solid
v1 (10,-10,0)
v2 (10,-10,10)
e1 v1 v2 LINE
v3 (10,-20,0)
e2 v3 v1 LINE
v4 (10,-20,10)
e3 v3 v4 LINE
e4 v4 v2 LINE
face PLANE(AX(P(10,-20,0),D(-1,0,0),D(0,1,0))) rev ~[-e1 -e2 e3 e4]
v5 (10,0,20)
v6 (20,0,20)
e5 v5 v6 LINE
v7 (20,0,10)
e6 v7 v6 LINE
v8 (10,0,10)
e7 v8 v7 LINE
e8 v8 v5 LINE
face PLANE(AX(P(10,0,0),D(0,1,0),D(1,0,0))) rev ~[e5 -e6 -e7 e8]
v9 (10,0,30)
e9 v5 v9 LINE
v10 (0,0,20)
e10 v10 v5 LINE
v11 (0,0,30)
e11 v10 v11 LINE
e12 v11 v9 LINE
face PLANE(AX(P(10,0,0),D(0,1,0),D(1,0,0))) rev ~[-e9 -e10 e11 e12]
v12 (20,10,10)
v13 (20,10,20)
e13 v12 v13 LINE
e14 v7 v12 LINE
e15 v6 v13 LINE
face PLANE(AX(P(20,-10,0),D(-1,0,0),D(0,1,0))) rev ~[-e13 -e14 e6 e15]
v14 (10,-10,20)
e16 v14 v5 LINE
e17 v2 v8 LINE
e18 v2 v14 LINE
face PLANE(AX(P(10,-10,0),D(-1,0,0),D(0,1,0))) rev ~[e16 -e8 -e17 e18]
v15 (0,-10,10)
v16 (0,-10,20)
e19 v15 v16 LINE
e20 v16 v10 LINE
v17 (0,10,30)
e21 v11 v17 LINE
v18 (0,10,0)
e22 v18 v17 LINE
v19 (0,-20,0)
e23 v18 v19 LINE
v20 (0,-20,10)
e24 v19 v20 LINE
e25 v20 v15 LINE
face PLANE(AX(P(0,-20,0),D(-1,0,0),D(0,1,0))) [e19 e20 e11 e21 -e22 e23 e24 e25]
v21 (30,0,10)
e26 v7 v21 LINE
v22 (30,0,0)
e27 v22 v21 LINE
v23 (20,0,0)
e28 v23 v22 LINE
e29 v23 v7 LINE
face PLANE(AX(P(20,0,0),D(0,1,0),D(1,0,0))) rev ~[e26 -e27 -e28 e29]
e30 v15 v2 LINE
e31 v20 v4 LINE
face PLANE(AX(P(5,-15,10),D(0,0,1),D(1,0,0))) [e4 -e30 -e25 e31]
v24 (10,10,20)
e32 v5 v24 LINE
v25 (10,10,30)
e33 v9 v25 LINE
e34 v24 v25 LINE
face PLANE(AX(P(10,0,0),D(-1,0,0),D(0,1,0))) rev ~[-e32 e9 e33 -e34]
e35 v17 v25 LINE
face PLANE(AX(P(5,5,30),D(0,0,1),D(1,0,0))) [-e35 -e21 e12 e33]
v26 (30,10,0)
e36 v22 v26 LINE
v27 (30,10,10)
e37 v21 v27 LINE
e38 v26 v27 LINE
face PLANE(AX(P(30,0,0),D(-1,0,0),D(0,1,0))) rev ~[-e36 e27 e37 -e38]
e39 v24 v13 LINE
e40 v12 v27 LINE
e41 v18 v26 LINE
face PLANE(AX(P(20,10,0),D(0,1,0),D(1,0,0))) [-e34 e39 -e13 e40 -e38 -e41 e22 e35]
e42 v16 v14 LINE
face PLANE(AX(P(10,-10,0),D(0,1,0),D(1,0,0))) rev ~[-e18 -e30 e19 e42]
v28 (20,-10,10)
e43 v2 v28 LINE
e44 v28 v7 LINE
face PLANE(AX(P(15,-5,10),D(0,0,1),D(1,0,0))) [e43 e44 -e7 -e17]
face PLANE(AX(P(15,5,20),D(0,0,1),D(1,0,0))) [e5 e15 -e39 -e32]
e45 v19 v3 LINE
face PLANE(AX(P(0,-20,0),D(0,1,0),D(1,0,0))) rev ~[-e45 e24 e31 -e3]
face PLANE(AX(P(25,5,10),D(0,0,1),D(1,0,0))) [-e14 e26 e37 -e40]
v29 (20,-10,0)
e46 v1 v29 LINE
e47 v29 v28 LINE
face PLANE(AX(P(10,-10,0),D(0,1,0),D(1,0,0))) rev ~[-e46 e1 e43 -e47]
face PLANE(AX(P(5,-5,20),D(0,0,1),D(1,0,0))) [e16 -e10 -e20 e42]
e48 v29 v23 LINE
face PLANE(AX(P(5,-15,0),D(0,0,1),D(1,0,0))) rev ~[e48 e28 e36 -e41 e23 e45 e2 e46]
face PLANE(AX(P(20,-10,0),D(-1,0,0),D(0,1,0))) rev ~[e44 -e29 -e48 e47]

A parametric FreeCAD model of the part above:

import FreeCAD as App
import Part
import Sketcher

V = App.Vector
Q = App.Units.Quantity

doc = App.newDocument("Part")
body = doc.addObject("PartDesign::Body", "Body")

sketch1 = body.newObject("Sketcher::SketchObject", "Sketch")
sketch1.AttachmentSupport = (doc.getObject("XY_Plane"), [""])
sketch1.MapMode = "FlatFace"
sketch1.addGeometry(Part.LineSegment(V(10, 10, 0), V(10, 0, 0)), False)
sketch1.addGeometry(Part.LineSegment(V(10, 0, 0), V(20, 0, 0)), False)
sketch1.addGeometry(Part.LineSegment(V(20, 0, 0), V(20, 10, 0)), False)
sketch1.addGeometry(Part.LineSegment(V(20, 10, 0), V(10, 10, 0)), False)
sketch1.addConstraint(Sketcher.Constraint("Coincident", 0, 2, 1, 1))
sketch1.addConstraint(Sketcher.Constraint("Coincident", 1, 2, 2, 1))
sketch1.addConstraint(Sketcher.Constraint("Coincident", 2, 2, 3, 1))
sketch1.addConstraint(Sketcher.Constraint("Coincident", 3, 2, 0, 1))
sketch1.addConstraint(Sketcher.Constraint("Vertical", 0))
sketch1.addConstraint(Sketcher.Constraint("Horizontal", 1))
sketch1.addConstraint(Sketcher.Constraint("Vertical", 2))
sketch1.addConstraint(Sketcher.Constraint("Horizontal", 3))
sketch1.addConstraint(Sketcher.Constraint("PointOnObject", 0, 2, -1))
sketch1.addConstraint(Sketcher.Constraint("Equal", 3, 0))
sketch1.addConstraint(Sketcher.Constraint("DistanceX", 1, 1, 1, 2, Q("10 mm")))
sketch1.addConstraint(Sketcher.Constraint("DistanceX", -1, 1, 0, 2, Q("10 mm")))
pad1 = body.newObject("PartDesign::Pad", "Pad")
pad1.Profile = sketch1
pad1.Length = 20
body2 = doc.addObject("PartDesign::Body", "Body001")

sketch2 = body2.newObject("Sketcher::SketchObject", "Sketch001")
sketch2.AttachmentSupport = (doc.getObject("XY_Plane001"), [""])
sketch2.MapMode = "FlatFace"
sketch2.addGeometry(Part.LineSegment(V(0, 0, 0), V(0, -10, 0)), False)
sketch2.addGeometry(Part.LineSegment(V(0, -10, 0), V(10, -10, 0)), False)
sketch2.addGeometry(Part.LineSegment(V(10, -10, 0), V(10, 0, 0)), False)
sketch2.addGeometry(Part.LineSegment(V(10, 0, 0), V(0, 0, 0)), False)
sketch2.addConstraint(Sketcher.Constraint("Coincident", 0, 2, 1, 1))
sketch2.addConstraint(Sketcher.Constraint("Coincident", 1, 2, 2, 1))
sketch2.addConstraint(Sketcher.Constraint("Coincident", 2, 2, 3, 1))
sketch2.addConstraint(Sketcher.Constraint("Coincident", 3, 2, 0, 1))
sketch2.addConstraint(Sketcher.Constraint("Vertical", 0))
sketch2.addConstraint(Sketcher.Constraint("Horizontal", 1))
sketch2.addConstraint(Sketcher.Constraint("Vertical", 2))
sketch2.addConstraint(Sketcher.Constraint("Horizontal", 3))
sketch2.addConstraint(Sketcher.Constraint("Coincident", 3, 2, -1, 1))
sketch2.addConstraint(Sketcher.Constraint("Equal", 3, 0))
sketch2.addConstraint(Sketcher.Constraint("DistanceX", 1, 1, 1, 2, Q("10 mm")))
pad2 = body2.newObject("PartDesign::Pad", "Pad001")
pad2.Profile = sketch2
pad2.Length = 20
body3 = doc.addObject("PartDesign::Body", "Body002")

sketch3 = body3.newObject("Sketcher::SketchObject", "Sketch002")
sketch3.AttachmentSupport = (doc.getObject("XY_Plane002"), [""])
sketch3.MapMode = "FlatFace"
sketch3.addGeometry(Part.LineSegment(V(10, 0, 0), V(10, -10, 0)), False)
sketch3.addGeometry(Part.LineSegment(V(10, -10, 0), V(20, -10, 0)), False)
sketch3.addGeometry(Part.LineSegment(V(20, -10, 0), V(20, 0, 0)), False)
sketch3.addGeometry(Part.LineSegment(V(20, 0, 0), V(10, 0, 0)), False)
sketch3.addConstraint(Sketcher.Constraint("Coincident", 0, 2, 1, 1))
sketch3.addConstraint(Sketcher.Constraint("Coincident", 1, 2, 2, 1))
sketch3.addConstraint(Sketcher.Constraint("Coincident", 2, 2, 3, 1))
sketch3.addConstraint(Sketcher.Constraint("Coincident", 3, 2, 0, 1))
sketch3.addConstraint(Sketcher.Constraint("Vertical", 0))
sketch3.addConstraint(Sketcher.Constraint("Horizontal", 1))
sketch3.addConstraint(Sketcher.Constraint("Vertical", 2))
sketch3.addConstraint(Sketcher.Constraint("Horizontal", 3))
sketch3.addConstraint(Sketcher.Constraint("PointOnObject", 2, 2, -1))
sketch3.addConstraint(Sketcher.Constraint("Equal", 3, 0))
sketch3.addConstraint(Sketcher.Constraint("DistanceX", 1, 1, 1, 2, Q("10 mm")))
sketch3.addConstraint(Sketcher.Constraint("DistanceX", -1, 1, 0, 2, Q("10 mm")))
pad3 = body3.newObject("PartDesign::Pad", "Pad002")
pad3.Profile = sketch3
pad3.Length = 10
body4 = doc.addObject("PartDesign::Body", "Body003")

sketch4 = body4.newObject("Sketcher::SketchObject", "Sketch003")
sketch4.AttachmentSupport = (doc.getObject("XY_Plane003"), [""])
sketch4.MapMode = "FlatFace"
sketch4.addGeometry(Part.LineSegment(V(20, 10, 0), V(20, 0, 0)), False)
sketch4.addGeometry(Part.LineSegment(V(20, 0, 0), V(30, 0, 0)), False)
sketch4.addGeometry(Part.LineSegment(V(30, 0, 0), V(30, 10, 0)), False)
sketch4.addGeometry(Part.LineSegment(V(30, 10, 0), V(20, 10, 0)), False)
sketch4.addConstraint(Sketcher.Constraint("Coincident", 0, 2, 1, 1))
sketch4.addConstraint(Sketcher.Constraint("Coincident", 1, 2, 2, 1))
sketch4.addConstraint(Sketcher.Constraint("Coincident", 2, 2, 3, 1))
sketch4.addConstraint(Sketcher.Constraint("Coincident", 3, 2, 0, 1))
sketch4.addConstraint(Sketcher.Constraint("Vertical", 0))
sketch4.addConstraint(Sketcher.Constraint("Horizontal", 1))
sketch4.addConstraint(Sketcher.Constraint("Vertical", 2))
sketch4.addConstraint(Sketcher.Constraint("Horizontal", 3))
sketch4.addConstraint(Sketcher.Constraint("PointOnObject", 0, 2, -1))
sketch4.addConstraint(Sketcher.Constraint("Equal", 3, 0))
sketch4.addConstraint(Sketcher.Constraint("DistanceX", 1, 1, 1, 2, Q("10 mm")))
sketch4.addConstraint(Sketcher.Constraint("DistanceX", -1, 1, 0, 2, Q("20 mm")))
pad4 = body4.newObject("PartDesign::Pad", "Pad003")
pad4.Profile = sketch4
pad4.Length = 10
body5 = doc.addObject("PartDesign::Body", "Body004")

sketch5 = body5.newObject("Sketcher::SketchObject", "Sketch004")
sketch5.AttachmentSupport = (doc.getObject("XY_Plane004"), [""])
sketch5.MapMode = "FlatFace"
sketch5.addGeometry(Part.LineSegment(V(0, -10, 0), V(0, -20, 0)), False)
sketch5.addGeometry(Part.LineSegment(V(0, -20, 0), V(10, -20, 0)), False)
sketch5.addGeometry(Part.LineSegment(V(10, -20, 0), V(10, -10, 0)), False)
sketch5.addGeometry(Part.LineSegment(V(10, -10, 0), V(0, -10, 0)), False)
sketch5.addConstraint(Sketcher.Constraint("Coincident", 0, 2, 1, 1))
sketch5.addConstraint(Sketcher.Constraint("Coincident", 1, 2, 2, 1))
sketch5.addConstraint(Sketcher.Constraint("Coincident", 2, 2, 3, 1))
sketch5.addConstraint(Sketcher.Constraint("Coincident", 3, 2, 0, 1))
sketch5.addConstraint(Sketcher.Constraint("Vertical", 0))
sketch5.addConstraint(Sketcher.Constraint("Horizontal", 1))
sketch5.addConstraint(Sketcher.Constraint("Vertical", 2))
sketch5.addConstraint(Sketcher.Constraint("Horizontal", 3))
sketch5.addConstraint(Sketcher.Constraint("PointOnObject", 0, 2, -2))
sketch5.addConstraint(Sketcher.Constraint("Equal", 3, 0))
sketch5.addConstraint(Sketcher.Constraint("DistanceX", 1, 1, 1, 2, Q("10 mm")))
sketch5.addConstraint(Sketcher.Constraint("DistanceY", 0, 2, -1, 1, Q("20 mm")))
pad5 = body5.newObject("PartDesign::Pad", "Pad004")
pad5.Profile = sketch5
pad5.Length = 10
body6 = doc.addObject("PartDesign::Body", "Body005")

sketch6 = body6.newObject("Sketcher::SketchObject", "Sketch005")
sketch6.AttachmentSupport = (doc.getObject("XY_Plane005"), [""])
sketch6.MapMode = "FlatFace"
sketch6.addGeometry(Part.LineSegment(V(0, 10, 0), V(0, 0, 0)), False)
sketch6.addGeometry(Part.LineSegment(V(0, 0, 0), V(10, 0, 0)), False)
sketch6.addGeometry(Part.LineSegment(V(10, 0, 0), V(10, 10, 0)), False)
sketch6.addGeometry(Part.LineSegment(V(10, 10, 0), V(0, 10, 0)), False)
sketch6.addConstraint(Sketcher.Constraint("Coincident", 0, 2, 1, 1))
sketch6.addConstraint(Sketcher.Constraint("Coincident", 1, 2, 2, 1))
sketch6.addConstraint(Sketcher.Constraint("Coincident", 2, 2, 3, 1))
sketch6.addConstraint(Sketcher.Constraint("Coincident", 3, 2, 0, 1))
sketch6.addConstraint(Sketcher.Constraint("Vertical", 0))
sketch6.addConstraint(Sketcher.Constraint("Horizontal", 1))
sketch6.addConstraint(Sketcher.Constraint("Vertical", 2))
sketch6.addConstraint(Sketcher.Constraint("Horizontal", 3))
sketch6.addConstraint(Sketcher.Constraint("Coincident", 0, 2, -1, 1))
sketch6.addConstraint(Sketcher.Constraint("Equal", 3, 0))
sketch6.addConstraint(Sketcher.Constraint("DistanceX", 1, 1, 1, 2, Q("10 mm")))
pad6 = body6.newObject("PartDesign::Pad", "Pad005")
pad6.Profile = sketch6
pad6.Length = 30
doc.recompute()

boolean = body6.newObject("PartDesign::Boolean", "Boolean")
boolean.Type = "Fuse"
boolean.addObjects([body])
doc.recompute()

boolean2 = body6.newObject("PartDesign::Boolean", "Boolean001")
boolean2.Type = "Fuse"
boolean2.addObjects([body2])
doc.recompute()

boolean3 = body6.newObject("PartDesign::Boolean", "Boolean002")
boolean3.Type = "Fuse"
boolean3.addObjects([body3])
doc.recompute()

boolean4 = body6.newObject("PartDesign::Boolean", "Boolean003")
boolean4.Type = "Fuse"
boolean4.addObjects([body4])
doc.recompute()

boolean5 = body6.newObject("PartDesign::Boolean", "Boolean004")
boolean5.Type = "Fuse"
boolean5.addObjects([body5])

doc.recompute()
